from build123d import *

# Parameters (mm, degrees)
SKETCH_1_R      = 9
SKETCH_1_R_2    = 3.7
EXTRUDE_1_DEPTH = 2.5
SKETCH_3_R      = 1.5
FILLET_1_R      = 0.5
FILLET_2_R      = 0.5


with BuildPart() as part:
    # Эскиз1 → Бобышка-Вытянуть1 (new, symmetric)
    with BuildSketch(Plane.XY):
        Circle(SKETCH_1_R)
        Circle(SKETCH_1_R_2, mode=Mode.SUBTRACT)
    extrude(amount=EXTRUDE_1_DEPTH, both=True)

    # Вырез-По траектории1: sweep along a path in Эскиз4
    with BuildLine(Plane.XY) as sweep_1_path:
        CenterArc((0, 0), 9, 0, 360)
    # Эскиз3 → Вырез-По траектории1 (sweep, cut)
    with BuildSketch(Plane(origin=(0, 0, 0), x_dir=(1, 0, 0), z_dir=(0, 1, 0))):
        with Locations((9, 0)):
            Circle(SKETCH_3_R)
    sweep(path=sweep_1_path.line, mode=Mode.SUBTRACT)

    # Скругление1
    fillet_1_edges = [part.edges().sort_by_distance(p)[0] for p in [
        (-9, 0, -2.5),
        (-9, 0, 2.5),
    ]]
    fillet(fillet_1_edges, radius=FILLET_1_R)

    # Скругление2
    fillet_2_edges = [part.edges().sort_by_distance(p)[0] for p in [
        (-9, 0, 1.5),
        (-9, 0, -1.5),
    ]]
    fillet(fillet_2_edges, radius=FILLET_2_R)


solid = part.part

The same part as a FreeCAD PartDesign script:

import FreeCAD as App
import Part
import Sketcher
Q = App.Units.Quantity


def edges_at(feature, points):
    """Names of the edges that pass closest to the given points."""
    edges = feature.Shape.Edges
    near = lambda p: min(range(len(edges)), key=lambda i: edges[i].distToShape(Part.Vertex(*p))[0])
    return sorted({f"Edge{near(p) + 1}" for p in points})

doc = App.newDocument("Part")
params = doc.addObject("Spreadsheet::Sheet", "Params")
for row, (alias, value) in enumerate([
    ("sketch1_diameter", "18 mm"),
    ("sketch1_diameter2", "7.4 mm"),
    ("pad1_length", "5 mm"),
    ("sketch2_diameter", "3 mm"),
    ("sketch3_diameter", "18 mm"),
    ("fillet_radius", "0.5 mm"),
    ("fillet2_radius", "0.5 mm"),
], start=1):
    params.set(f"A{row}", alias)
    params.set(f"B{row}", "=" + value)
    params.setAlias(f"B{row}", alias)

body = doc.addObject("PartDesign::Body", "Body")

# Sketch on XY plane
sketch1 = body.newObject("Sketcher::SketchObject", "Sketch")
sketch1.AttachmentSupport = (doc.getObject("XY_Plane"), [""])
sketch1.MapMode = "FlatFace"
sketch1.addGeometry([
    Part.Circle(App.Vector(0, 0, 0), App.Vector(0, 0, 1), 9),
    Part.Circle(App.Vector(0, 0, 0), App.Vector(0, 0, 1), 3.7),
], False)
sketch1.addConstraint([
    Sketcher.Constraint("Coincident", 0, 3, -1, 1),
    Sketcher.Constraint("Coincident", 1, 3, -1, 1),
    Sketcher.Constraint("Diameter", 0, Q("18 mm")),
    Sketcher.Constraint("Diameter", 1, Q("7.4 mm")),
])
sketch1.setExpression("Constraints[2]", "Params.sketch1_diameter")
sketch1.setExpression("Constraints[3]", "Params.sketch1_diameter2")
pad1 = body.newObject("PartDesign::Pad", "Pad")
pad1.Profile = sketch1
pad1.setExpression("Length", "Params.pad1_length")
pad1.Midplane = True

# Sketch on XZ plane
sketch2 = body.newObject("Sketcher::SketchObject", "Sketch001")
sketch2.AttachmentSupport = (doc.getObject("XZ_Plane"), [""])
sketch2.MapMode = "FlatFace"
sketch2.addGeometry(Part.Circle(App.Vector(9, 0, 0), App.Vector(0, 0, 1), 1.5), False)
sketch2.addConstraint([
    Sketcher.Constraint("PointOnObject", 0, 3, -1),
    Sketcher.Constraint("Diameter", 0, Q("3 mm")),
    Sketcher.Constraint("DistanceX", -1, 1, 0, 3, Q("9 mm")),
])
sketch2.setExpression("Constraints[1]", "Params.sketch2_diameter")

# Sketch on XY plane
sketch3 = body.newObject("Sketcher::SketchObject", "Sketch002")
sketch3.AttachmentSupport = (doc.getObject("XY_Plane"), [""])
sketch3.MapMode = "FlatFace"
sketch3.addGeometry(Part.Circle(App.Vector(0, 0, 0), App.Vector(0, 0, 1), 9), False)
sketch3.addConstraint([
    Sketcher.Constraint("Coincident", 0, 3, -1, 1),
    Sketcher.Constraint("Diameter", 0, Q("18 mm")),
])
sketch3.setExpression("Constraints[1]", "Params.sketch3_diameter")
doc.recompute()

subtractivepipe = body.newObject("PartDesign::SubtractivePipe", "SubtractivePipe")
subtractivepipe.Profile = sketch2
subtractivepipe.Spine = (sketch3, ["Edge1"])
doc.recompute()

fillet = body.newObject("PartDesign::Fillet", "Fillet")
fillet.Base = (subtractivepipe, edges_at(subtractivepipe, [(-9, 0, -2.5), (-9, 0, 2.5)]))
fillet.setExpression("Radius", "Params.fillet_radius")
doc.recompute()

fillet2 = body.newObject("PartDesign::Fillet", "Fillet001")
fillet2.Base = (fillet, edges_at(fillet, [(-9, 0, 1.5), (-9, 0, -1.5)]))
fillet2.setExpression("Radius", "Params.fillet2_radius")

doc.recompute()
